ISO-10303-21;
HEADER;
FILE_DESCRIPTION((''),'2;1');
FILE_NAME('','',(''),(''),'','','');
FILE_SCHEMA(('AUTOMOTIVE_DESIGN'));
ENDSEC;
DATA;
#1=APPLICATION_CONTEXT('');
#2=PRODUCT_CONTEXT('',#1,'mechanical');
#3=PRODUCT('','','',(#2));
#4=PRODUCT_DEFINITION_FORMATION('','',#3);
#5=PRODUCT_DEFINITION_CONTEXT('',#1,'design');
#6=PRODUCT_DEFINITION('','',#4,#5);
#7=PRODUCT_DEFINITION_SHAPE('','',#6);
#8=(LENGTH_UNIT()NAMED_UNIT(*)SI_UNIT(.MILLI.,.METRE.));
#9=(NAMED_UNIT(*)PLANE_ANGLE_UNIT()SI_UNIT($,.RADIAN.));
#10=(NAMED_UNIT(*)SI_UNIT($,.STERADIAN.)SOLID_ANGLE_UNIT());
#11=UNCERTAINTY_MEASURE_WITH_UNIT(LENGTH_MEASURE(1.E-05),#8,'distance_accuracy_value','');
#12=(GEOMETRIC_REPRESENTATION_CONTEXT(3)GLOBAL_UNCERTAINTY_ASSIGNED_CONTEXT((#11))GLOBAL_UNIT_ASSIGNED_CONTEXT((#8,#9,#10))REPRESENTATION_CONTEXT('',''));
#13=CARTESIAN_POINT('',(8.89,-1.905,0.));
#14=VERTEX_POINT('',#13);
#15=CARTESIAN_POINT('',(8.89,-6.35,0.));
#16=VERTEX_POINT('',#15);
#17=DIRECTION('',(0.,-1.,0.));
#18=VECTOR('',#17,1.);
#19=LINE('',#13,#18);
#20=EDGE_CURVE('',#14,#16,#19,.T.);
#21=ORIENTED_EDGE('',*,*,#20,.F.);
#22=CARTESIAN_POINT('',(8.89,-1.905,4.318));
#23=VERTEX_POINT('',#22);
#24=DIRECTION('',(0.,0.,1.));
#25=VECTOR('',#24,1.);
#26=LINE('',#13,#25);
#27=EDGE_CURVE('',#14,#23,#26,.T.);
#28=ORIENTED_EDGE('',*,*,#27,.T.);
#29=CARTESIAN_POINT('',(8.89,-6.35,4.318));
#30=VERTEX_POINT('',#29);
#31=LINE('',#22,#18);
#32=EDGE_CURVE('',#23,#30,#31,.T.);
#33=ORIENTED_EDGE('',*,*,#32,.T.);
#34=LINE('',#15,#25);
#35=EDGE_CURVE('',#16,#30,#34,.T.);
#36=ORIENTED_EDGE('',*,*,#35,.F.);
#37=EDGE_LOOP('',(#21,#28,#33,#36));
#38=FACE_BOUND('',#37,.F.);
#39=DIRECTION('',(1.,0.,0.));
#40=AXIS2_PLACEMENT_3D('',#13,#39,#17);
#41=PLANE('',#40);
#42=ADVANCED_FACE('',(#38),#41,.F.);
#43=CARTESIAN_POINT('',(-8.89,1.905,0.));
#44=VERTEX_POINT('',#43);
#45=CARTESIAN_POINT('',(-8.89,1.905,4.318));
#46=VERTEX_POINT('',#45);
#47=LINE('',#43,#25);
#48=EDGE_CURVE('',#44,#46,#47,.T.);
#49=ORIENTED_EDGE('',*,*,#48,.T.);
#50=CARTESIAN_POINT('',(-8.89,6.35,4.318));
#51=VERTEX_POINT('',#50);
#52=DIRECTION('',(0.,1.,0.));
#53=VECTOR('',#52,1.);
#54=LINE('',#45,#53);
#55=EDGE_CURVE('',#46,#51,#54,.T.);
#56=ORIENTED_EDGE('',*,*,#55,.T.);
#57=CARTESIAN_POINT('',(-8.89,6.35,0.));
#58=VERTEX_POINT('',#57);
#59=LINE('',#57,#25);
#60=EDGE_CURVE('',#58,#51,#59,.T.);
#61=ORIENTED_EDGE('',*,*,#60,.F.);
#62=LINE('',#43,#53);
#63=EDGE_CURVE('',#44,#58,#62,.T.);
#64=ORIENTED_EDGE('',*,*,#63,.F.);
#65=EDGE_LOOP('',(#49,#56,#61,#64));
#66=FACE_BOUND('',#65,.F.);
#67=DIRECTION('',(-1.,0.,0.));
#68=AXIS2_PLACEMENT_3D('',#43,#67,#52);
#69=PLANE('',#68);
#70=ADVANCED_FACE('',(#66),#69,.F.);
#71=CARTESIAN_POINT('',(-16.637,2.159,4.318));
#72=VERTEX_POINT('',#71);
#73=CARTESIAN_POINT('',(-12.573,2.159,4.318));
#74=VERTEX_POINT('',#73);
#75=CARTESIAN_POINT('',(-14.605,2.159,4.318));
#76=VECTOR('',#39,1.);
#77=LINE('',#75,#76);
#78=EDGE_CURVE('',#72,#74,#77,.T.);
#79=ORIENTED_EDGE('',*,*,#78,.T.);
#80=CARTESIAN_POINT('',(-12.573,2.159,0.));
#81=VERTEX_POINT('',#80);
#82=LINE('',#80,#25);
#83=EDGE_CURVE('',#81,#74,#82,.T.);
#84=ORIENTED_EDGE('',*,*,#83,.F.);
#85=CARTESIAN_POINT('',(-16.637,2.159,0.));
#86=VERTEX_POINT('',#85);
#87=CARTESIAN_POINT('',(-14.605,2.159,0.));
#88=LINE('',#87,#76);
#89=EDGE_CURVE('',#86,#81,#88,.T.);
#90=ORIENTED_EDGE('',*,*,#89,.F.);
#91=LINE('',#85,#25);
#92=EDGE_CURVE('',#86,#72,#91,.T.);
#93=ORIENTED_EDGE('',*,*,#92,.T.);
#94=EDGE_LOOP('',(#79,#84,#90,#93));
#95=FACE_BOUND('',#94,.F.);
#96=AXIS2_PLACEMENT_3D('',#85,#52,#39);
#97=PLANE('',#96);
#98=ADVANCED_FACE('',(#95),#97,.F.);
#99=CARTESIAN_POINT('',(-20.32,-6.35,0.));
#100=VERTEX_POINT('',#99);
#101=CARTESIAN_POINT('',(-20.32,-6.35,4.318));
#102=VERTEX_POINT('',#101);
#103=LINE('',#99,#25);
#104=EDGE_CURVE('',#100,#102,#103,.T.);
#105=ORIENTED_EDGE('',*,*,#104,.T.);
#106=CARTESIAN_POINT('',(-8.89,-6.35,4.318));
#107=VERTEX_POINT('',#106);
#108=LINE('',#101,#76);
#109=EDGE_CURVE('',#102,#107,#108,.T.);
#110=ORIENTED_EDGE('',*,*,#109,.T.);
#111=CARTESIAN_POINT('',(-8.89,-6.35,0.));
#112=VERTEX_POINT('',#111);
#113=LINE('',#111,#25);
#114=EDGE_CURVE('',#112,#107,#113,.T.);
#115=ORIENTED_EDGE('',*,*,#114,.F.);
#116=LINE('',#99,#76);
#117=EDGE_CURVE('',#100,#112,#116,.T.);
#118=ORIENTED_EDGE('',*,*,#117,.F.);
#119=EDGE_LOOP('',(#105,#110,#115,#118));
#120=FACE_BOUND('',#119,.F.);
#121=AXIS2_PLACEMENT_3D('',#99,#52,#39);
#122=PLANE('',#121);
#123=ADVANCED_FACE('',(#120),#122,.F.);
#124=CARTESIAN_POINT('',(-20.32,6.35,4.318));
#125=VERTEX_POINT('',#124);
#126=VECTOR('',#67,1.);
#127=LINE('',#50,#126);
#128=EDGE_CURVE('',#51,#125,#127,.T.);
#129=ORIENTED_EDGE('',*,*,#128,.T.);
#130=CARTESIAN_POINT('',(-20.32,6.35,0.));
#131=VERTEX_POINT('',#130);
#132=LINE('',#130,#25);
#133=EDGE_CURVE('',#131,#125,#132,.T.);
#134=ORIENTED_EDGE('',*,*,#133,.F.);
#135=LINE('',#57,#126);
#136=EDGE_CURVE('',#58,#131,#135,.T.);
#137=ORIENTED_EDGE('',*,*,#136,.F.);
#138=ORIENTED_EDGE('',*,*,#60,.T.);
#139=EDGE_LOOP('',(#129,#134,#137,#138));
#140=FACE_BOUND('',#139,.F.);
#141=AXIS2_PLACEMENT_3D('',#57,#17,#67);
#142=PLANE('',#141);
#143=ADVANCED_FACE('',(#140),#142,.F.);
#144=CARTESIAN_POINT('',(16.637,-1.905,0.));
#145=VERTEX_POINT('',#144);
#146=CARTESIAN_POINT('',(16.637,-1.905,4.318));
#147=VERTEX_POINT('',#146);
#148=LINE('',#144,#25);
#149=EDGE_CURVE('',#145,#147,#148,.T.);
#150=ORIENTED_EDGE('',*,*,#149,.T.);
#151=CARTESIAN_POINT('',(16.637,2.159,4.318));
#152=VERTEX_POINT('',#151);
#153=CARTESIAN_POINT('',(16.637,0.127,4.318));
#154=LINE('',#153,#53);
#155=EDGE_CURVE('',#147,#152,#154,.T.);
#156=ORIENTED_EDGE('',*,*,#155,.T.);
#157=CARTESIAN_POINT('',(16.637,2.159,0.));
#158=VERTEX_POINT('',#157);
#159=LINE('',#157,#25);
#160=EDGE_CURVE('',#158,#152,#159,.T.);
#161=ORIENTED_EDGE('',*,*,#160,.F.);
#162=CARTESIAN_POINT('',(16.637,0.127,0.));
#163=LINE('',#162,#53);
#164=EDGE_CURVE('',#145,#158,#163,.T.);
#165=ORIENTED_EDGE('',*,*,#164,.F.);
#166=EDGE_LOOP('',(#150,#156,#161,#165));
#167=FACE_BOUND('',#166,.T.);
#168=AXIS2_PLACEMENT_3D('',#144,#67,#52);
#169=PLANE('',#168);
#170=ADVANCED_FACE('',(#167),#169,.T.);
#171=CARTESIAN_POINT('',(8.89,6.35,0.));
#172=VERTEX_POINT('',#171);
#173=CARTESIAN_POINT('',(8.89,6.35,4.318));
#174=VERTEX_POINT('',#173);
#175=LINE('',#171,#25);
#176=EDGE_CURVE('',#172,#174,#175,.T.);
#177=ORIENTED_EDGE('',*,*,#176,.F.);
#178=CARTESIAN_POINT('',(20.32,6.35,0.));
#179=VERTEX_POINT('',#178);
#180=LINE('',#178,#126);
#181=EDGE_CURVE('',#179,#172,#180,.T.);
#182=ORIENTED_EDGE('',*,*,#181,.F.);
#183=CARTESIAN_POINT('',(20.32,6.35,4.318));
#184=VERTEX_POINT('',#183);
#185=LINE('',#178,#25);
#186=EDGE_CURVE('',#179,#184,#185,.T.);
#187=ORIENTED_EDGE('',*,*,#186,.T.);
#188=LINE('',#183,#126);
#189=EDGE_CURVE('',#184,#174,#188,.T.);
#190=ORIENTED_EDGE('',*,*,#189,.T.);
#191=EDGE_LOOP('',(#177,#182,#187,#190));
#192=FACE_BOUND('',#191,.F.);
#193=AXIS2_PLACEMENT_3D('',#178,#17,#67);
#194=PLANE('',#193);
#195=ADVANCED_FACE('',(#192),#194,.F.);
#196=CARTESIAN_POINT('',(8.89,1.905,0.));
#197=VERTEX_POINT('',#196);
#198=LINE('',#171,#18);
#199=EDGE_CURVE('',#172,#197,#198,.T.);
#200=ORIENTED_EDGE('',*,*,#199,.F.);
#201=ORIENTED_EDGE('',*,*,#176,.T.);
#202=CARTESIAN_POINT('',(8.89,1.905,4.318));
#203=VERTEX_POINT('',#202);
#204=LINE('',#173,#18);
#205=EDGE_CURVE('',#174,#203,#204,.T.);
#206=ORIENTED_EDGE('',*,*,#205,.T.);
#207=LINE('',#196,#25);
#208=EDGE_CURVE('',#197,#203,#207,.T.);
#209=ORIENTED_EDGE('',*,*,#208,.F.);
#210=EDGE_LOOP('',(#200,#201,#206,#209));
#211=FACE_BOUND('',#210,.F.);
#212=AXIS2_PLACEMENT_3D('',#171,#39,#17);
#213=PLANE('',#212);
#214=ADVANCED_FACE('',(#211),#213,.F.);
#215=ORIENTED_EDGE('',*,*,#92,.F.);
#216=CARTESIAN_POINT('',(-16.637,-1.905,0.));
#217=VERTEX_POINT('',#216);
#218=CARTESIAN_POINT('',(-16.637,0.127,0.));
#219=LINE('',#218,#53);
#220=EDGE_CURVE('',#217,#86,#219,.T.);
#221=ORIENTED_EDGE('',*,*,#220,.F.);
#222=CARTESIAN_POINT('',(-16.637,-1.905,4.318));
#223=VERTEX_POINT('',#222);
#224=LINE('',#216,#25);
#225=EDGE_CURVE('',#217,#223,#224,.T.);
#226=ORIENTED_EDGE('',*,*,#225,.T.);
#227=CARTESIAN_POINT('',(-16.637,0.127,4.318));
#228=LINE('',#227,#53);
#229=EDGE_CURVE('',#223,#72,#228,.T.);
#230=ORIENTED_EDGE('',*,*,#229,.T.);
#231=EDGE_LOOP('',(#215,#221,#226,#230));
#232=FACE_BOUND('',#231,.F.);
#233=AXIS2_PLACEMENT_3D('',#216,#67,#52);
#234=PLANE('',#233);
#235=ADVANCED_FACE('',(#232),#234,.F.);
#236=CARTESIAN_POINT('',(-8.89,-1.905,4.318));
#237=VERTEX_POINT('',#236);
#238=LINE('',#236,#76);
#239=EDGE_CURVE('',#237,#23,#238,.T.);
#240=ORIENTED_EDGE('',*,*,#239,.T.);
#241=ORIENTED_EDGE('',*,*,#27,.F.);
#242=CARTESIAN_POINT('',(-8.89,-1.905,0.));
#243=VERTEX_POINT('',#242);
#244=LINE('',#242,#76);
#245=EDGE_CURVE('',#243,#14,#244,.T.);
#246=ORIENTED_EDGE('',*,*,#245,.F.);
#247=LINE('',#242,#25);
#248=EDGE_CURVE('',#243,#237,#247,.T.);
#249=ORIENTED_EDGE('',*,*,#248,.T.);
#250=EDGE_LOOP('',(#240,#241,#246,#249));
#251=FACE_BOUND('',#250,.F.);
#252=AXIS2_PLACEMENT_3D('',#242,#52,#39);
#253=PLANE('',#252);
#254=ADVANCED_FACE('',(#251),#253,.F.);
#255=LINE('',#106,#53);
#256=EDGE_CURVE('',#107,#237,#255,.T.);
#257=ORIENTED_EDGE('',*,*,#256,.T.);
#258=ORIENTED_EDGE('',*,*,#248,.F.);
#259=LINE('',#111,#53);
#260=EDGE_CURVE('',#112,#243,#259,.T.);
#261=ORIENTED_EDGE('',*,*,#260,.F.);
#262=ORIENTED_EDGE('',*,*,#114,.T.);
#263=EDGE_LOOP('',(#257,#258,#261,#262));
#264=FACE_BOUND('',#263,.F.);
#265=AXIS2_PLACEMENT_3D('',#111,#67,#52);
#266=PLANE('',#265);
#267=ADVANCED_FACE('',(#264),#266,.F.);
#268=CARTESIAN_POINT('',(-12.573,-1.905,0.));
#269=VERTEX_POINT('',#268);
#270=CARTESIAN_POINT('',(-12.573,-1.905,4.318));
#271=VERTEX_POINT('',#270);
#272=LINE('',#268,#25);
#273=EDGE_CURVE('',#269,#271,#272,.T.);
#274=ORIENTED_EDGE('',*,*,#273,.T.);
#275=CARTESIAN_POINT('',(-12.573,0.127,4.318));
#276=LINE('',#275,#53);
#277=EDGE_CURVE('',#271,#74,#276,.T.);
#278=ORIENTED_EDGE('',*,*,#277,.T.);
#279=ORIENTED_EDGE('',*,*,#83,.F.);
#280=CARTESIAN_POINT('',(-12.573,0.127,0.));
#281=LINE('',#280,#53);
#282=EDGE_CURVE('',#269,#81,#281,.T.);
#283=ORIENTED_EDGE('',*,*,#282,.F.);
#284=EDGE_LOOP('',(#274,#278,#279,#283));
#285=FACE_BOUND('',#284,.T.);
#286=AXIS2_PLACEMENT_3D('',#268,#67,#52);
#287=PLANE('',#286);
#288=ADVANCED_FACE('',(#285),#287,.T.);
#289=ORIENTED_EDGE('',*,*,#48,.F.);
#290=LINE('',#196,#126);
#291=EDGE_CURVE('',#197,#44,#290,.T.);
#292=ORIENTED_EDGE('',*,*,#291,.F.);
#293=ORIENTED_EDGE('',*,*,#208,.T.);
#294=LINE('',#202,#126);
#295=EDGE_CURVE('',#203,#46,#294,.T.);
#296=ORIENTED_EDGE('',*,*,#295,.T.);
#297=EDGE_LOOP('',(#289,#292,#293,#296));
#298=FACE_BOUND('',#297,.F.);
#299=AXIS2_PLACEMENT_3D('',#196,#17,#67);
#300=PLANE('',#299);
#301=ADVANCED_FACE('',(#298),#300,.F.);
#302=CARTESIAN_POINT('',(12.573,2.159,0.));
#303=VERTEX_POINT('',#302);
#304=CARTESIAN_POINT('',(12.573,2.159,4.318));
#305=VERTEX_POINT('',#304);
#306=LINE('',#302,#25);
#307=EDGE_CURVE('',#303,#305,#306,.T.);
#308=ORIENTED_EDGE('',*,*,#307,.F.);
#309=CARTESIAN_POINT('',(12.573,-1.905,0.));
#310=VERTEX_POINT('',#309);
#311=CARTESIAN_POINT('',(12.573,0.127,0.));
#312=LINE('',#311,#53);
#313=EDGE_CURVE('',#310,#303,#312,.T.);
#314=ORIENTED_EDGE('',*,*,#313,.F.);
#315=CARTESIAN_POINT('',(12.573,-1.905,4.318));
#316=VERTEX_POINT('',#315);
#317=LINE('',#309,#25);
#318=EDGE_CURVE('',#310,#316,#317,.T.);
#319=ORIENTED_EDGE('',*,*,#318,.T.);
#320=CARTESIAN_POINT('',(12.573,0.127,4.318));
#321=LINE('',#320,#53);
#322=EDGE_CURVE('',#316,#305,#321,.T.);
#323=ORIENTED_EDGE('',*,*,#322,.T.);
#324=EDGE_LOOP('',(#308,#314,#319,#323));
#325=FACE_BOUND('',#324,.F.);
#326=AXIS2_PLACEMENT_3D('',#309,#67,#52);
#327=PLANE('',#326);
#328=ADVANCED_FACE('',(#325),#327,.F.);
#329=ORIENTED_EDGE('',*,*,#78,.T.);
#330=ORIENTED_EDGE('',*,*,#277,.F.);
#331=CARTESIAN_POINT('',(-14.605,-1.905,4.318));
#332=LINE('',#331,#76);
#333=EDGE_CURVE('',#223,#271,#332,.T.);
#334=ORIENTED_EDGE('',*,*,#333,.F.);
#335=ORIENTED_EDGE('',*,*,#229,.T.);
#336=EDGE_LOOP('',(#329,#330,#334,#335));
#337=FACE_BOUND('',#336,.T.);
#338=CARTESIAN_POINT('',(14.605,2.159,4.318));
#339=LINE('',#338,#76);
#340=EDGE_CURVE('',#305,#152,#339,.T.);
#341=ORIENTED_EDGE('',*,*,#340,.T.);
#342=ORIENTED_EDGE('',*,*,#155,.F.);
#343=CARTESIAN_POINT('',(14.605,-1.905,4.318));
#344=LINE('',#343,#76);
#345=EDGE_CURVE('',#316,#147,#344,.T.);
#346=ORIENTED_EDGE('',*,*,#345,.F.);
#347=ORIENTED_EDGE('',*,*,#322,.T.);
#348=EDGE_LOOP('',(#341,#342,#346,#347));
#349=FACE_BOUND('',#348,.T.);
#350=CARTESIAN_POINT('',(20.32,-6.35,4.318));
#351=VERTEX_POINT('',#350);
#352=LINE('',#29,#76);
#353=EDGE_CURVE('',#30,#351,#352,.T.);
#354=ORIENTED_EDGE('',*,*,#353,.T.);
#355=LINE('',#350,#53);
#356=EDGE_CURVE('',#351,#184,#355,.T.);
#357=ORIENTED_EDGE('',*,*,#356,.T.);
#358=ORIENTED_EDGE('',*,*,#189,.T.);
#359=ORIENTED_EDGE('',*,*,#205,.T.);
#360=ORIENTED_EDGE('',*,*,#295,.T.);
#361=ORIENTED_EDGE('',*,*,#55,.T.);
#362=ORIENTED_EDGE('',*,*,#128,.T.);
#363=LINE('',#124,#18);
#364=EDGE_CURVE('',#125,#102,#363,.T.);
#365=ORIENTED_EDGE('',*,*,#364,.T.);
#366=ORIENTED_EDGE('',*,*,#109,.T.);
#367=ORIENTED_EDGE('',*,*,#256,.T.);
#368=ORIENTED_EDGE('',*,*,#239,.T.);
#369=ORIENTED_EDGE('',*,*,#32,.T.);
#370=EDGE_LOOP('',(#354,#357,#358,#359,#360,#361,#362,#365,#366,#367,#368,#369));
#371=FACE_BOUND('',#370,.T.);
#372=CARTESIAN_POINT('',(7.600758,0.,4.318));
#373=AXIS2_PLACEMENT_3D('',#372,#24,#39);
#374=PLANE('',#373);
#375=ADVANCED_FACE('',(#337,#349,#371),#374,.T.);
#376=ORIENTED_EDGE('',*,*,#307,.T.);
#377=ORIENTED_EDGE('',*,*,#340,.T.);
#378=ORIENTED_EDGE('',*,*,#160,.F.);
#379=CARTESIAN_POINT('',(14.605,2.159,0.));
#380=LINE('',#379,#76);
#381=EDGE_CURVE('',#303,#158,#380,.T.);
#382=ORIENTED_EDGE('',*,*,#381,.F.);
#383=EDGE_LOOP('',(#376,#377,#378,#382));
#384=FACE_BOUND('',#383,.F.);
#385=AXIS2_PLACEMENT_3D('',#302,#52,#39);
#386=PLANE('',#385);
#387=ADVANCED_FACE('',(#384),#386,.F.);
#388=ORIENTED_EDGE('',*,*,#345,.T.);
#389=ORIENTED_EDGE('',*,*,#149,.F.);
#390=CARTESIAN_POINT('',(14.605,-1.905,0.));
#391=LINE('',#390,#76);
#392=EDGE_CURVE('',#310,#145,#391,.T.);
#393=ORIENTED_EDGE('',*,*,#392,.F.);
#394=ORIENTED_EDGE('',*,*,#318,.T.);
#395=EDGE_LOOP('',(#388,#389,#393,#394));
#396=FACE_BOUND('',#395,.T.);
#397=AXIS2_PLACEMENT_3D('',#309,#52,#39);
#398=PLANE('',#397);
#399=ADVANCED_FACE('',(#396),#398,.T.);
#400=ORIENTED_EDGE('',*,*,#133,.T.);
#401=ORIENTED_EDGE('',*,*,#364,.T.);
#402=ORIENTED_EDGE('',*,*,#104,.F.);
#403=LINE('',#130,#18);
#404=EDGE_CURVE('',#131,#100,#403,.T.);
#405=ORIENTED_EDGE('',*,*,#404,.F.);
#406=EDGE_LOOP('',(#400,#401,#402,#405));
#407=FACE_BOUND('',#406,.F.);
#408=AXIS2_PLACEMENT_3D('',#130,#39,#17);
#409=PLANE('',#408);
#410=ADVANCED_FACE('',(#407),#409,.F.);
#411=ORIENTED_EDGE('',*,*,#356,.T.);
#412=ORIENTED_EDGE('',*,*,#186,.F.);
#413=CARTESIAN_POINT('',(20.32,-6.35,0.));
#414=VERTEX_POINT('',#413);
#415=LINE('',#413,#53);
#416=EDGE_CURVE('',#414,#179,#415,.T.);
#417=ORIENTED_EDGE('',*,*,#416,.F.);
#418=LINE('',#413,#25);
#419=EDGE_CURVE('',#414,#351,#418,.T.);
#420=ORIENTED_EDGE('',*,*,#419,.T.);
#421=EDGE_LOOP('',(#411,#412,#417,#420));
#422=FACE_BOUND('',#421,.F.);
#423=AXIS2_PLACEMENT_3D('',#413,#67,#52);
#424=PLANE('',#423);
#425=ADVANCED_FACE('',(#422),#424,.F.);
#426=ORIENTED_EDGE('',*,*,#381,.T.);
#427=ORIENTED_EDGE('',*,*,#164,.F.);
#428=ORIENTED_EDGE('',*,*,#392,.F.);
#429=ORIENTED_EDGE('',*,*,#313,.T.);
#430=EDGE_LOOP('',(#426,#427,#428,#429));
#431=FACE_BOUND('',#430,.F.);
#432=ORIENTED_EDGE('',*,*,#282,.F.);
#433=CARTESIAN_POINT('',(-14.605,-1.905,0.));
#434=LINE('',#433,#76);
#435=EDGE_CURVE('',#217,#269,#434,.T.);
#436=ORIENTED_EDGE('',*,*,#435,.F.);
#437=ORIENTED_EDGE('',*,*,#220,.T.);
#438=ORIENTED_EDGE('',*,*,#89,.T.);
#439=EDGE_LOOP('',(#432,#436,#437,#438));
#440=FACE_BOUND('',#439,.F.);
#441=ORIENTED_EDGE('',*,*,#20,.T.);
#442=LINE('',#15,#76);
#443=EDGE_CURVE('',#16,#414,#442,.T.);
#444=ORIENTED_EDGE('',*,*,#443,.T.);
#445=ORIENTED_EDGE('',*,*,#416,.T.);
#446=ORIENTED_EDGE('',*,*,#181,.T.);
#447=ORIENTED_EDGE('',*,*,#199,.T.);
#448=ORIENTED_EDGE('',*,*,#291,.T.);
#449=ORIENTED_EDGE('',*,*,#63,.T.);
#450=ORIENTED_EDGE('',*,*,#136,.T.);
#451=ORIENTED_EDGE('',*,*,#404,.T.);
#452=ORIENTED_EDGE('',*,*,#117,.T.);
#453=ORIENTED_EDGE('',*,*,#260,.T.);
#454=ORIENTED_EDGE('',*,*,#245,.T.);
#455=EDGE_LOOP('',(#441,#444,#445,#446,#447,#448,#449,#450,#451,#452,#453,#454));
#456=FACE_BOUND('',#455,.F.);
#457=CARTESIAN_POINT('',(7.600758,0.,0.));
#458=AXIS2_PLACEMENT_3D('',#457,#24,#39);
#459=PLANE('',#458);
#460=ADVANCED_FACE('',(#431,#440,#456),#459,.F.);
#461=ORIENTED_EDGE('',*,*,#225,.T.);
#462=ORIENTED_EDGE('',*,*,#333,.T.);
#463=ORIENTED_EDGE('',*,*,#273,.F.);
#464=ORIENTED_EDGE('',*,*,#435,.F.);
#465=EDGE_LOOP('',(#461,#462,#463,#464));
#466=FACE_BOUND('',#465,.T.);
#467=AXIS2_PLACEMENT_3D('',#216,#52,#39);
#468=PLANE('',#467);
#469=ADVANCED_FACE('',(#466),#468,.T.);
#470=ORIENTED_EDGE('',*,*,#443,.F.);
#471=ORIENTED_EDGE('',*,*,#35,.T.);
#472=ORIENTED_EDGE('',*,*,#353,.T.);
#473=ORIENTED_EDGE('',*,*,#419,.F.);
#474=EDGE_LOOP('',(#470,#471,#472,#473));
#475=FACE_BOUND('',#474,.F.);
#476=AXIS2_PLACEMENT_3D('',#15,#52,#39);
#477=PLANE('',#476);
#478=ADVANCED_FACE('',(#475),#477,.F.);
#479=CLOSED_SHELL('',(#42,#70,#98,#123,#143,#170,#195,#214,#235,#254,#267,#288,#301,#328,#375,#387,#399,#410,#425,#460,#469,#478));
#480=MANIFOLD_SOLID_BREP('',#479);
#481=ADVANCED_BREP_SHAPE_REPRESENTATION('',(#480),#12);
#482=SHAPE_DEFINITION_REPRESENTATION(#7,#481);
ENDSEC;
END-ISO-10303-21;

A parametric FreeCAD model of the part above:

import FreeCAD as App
import Part
import Sketcher
Q = App.Units.Quantity

doc = App.newDocument("Part")
body = doc.addObject("PartDesign::Body", "Body")

sketch1 = body.newObject("Sketcher::SketchObject", "Sketch")
sketch1.AttachmentSupport = (doc.getObject("XY_Plane"), [""])
sketch1.MapMode = "FlatFace"
sketch1.addGeometry([
    Part.LineSegment(App.Vector(-8.89, -1.905, 0), App.Vector(8.89, -1.905, 0)),
    Part.LineSegment(App.Vector(8.89, -1.905, 0), App.Vector(8.89, -6.35, 0)),
    Part.LineSegment(App.Vector(8.89, -6.35, 0), App.Vector(20.32, -6.35, 0)),
    Part.LineSegment(App.Vector(20.32, -6.35, 0), App.Vector(20.32, 6.35, 0)),
    Part.LineSegment(App.Vector(20.32, 6.35, 0), App.Vector(8.89, 6.35, 0)),
    Part.LineSegment(App.Vector(8.89, 6.35, 0), App.Vector(8.89, 1.905, 0)),
    Part.LineSegment(App.Vector(8.89, 1.905, 0), App.Vector(-8.89, 1.905, 0)),
    Part.LineSegment(App.Vector(-8.89, 1.905, 0), App.Vector(-8.89, 6.35, 0)),
    Part.LineSegment(App.Vector(-8.89, 6.35, 0), App.Vector(-20.32, 6.35, 0)),
    Part.LineSegment(App.Vector(-20.32, 6.35, 0), App.Vector(-20.32, -6.35, 0)),
    Part.LineSegment(App.Vector(-20.32, -6.35, 0), App.Vector(-8.89, -6.35, 0)),
    Part.LineSegment(App.Vector(-8.89, -6.35, 0), App.Vector(-8.89, -1.905, 0)),
    Part.LineSegment(App.Vector(-12.573, -1.905, 0), App.Vector(-16.637, -1.905, 0)),
    Part.LineSegment(App.Vector(-16.637, -1.905, 0), App.Vector(-16.637, 2.159, 0)),
    Part.LineSegment(App.Vector(-16.637, 2.159, 0), App.Vector(-12.573, 2.159, 0)),
    Part.LineSegment(App.Vector(-12.573, 2.159, 0), App.Vector(-12.573, -1.905, 0)),
    Part.LineSegment(App.Vector(16.637, -1.905, 0), App.Vector(12.573, -1.905, 0)),
    Part.LineSegment(App.Vector(12.573, -1.905, 0), App.Vector(12.573, 2.159, 0)),
    Part.LineSegment(App.Vector(12.573, 2.159, 0), App.Vector(16.637, 2.159, 0)),
    Part.LineSegment(App.Vector(16.637, 2.159, 0), App.Vector(16.637, -1.905, 0)),
], False)
sketch1.addConstraint([
    Sketcher.Constraint("Coincident", 0, 2, 1, 1),
    Sketcher.Constraint("Coincident", 1, 2, 2, 1),
    Sketcher.Constraint("Coincident", 2, 2, 3, 1),
    Sketcher.Constraint("Coincident", 3, 2, 4, 1),
    Sketcher.Constraint("Coincident", 4, 2, 5, 1),
    Sketcher.Constraint("Coincident", 5, 2, 6, 1),
    Sketcher.Constraint("Coincident", 6, 2, 7, 1),
    Sketcher.Constraint("Coincident", 7, 2, 8, 1),
    Sketcher.Constraint("Coincident", 8, 2, 9, 1),
    Sketcher.Constraint("Coincident", 9, 2, 10, 1),
    Sketcher.Constraint("Coincident", 10, 2, 11, 1),
    Sketcher.Constraint("Coincident", 11, 2, 0, 1),
    Sketcher.Constraint("Coincident", 12, 2, 13, 1),
    Sketcher.Constraint("Coincident", 13, 2, 14, 1),
    Sketcher.Constraint("Coincident", 14, 2, 15, 1),
    Sketcher.Constraint("Coincident", 15, 2, 12, 1),
    Sketcher.Constraint("Coincident", 16, 2, 17, 1),
    Sketcher.Constraint("Coincident", 17, 2, 18, 1),
    Sketcher.Constraint("Coincident", 18, 2, 19, 1),
    Sketcher.Constraint("Coincident", 19, 2, 16, 1),
    Sketcher.Constraint("Horizontal", 0),
    Sketcher.Constraint("Vertical", 1),
    Sketcher.Constraint("Horizontal", 2),
    Sketcher.Constraint("Vertical", 3),
    Sketcher.Constraint("Horizontal", 4),
    Sketcher.Constraint("Vertical", 5),
    Sketcher.Constraint("Horizontal", 6),
    Sketcher.Constraint("Vertical", 7),
    Sketcher.Constraint("Horizontal", 8),
    Sketcher.Constraint("Vertical", 9),
    Sketcher.Constraint("Horizontal", 10),
    Sketcher.Constraint("Vertical", 11),
    Sketcher.Constraint("Horizontal", 12),
    Sketcher.Constraint("Vertical", 13),
    Sketcher.Constraint("Horizontal", 14),
    Sketcher.Constraint("Vertical", 15),
    Sketcher.Constraint("Horizontal", 16),
    Sketcher.Constraint("Vertical", 17),
    Sketcher.Constraint("Horizontal", 18),
    Sketcher.Constraint("Vertical", 19),
    Sketcher.Constraint("Symmetric", 0, 2, 6, 2, -1, 1),
    Sketcher.Constraint("Symmetric", 2, 2, 8, 2, -1, 1),
    Sketcher.Constraint("Symmetric", 4, 2, 10, 2, -1, 1),
    Sketcher.Constraint("Symmetric", 4, 2, 7, 2, -2),
    Sketcher.Constraint("Symmetric", 15, 2, 16, 2, -2),
    Sketcher.Constraint("Symmetric", 13, 2, 18, 2, -2),
    Sketcher.Constraint("Horizontal", 11, 2, 12, 2),
    Sketcher.Constraint("Equal", 18, 13),
    Sketcher.Constraint("DistanceX", 0, 1, 0, 2, Q("0.7 in")),
    Sketcher.Constraint("DistanceY", 3, 1, 3, 2, Q("0.5 in")),
    Sketcher.Constraint("DistanceX", 2, 1, 2, 2, Q("0.45 in")),
    Sketcher.Constraint("DistanceX", 12, 2, 12, 1, Q("0.16 in")),
    Sketcher.Constraint("DistanceY", 1, 2, 1, 1, Q("0.175 in")),
    Sketcher.Constraint("DistanceX", 12, 2, -1, 1, Q("0.655 in")),
])
pad1 = body.newObject("PartDesign::Pad", "Pad")
pad1.Profile = sketch1
pad1.Length = Q("0.17 in")

doc.recompute()
